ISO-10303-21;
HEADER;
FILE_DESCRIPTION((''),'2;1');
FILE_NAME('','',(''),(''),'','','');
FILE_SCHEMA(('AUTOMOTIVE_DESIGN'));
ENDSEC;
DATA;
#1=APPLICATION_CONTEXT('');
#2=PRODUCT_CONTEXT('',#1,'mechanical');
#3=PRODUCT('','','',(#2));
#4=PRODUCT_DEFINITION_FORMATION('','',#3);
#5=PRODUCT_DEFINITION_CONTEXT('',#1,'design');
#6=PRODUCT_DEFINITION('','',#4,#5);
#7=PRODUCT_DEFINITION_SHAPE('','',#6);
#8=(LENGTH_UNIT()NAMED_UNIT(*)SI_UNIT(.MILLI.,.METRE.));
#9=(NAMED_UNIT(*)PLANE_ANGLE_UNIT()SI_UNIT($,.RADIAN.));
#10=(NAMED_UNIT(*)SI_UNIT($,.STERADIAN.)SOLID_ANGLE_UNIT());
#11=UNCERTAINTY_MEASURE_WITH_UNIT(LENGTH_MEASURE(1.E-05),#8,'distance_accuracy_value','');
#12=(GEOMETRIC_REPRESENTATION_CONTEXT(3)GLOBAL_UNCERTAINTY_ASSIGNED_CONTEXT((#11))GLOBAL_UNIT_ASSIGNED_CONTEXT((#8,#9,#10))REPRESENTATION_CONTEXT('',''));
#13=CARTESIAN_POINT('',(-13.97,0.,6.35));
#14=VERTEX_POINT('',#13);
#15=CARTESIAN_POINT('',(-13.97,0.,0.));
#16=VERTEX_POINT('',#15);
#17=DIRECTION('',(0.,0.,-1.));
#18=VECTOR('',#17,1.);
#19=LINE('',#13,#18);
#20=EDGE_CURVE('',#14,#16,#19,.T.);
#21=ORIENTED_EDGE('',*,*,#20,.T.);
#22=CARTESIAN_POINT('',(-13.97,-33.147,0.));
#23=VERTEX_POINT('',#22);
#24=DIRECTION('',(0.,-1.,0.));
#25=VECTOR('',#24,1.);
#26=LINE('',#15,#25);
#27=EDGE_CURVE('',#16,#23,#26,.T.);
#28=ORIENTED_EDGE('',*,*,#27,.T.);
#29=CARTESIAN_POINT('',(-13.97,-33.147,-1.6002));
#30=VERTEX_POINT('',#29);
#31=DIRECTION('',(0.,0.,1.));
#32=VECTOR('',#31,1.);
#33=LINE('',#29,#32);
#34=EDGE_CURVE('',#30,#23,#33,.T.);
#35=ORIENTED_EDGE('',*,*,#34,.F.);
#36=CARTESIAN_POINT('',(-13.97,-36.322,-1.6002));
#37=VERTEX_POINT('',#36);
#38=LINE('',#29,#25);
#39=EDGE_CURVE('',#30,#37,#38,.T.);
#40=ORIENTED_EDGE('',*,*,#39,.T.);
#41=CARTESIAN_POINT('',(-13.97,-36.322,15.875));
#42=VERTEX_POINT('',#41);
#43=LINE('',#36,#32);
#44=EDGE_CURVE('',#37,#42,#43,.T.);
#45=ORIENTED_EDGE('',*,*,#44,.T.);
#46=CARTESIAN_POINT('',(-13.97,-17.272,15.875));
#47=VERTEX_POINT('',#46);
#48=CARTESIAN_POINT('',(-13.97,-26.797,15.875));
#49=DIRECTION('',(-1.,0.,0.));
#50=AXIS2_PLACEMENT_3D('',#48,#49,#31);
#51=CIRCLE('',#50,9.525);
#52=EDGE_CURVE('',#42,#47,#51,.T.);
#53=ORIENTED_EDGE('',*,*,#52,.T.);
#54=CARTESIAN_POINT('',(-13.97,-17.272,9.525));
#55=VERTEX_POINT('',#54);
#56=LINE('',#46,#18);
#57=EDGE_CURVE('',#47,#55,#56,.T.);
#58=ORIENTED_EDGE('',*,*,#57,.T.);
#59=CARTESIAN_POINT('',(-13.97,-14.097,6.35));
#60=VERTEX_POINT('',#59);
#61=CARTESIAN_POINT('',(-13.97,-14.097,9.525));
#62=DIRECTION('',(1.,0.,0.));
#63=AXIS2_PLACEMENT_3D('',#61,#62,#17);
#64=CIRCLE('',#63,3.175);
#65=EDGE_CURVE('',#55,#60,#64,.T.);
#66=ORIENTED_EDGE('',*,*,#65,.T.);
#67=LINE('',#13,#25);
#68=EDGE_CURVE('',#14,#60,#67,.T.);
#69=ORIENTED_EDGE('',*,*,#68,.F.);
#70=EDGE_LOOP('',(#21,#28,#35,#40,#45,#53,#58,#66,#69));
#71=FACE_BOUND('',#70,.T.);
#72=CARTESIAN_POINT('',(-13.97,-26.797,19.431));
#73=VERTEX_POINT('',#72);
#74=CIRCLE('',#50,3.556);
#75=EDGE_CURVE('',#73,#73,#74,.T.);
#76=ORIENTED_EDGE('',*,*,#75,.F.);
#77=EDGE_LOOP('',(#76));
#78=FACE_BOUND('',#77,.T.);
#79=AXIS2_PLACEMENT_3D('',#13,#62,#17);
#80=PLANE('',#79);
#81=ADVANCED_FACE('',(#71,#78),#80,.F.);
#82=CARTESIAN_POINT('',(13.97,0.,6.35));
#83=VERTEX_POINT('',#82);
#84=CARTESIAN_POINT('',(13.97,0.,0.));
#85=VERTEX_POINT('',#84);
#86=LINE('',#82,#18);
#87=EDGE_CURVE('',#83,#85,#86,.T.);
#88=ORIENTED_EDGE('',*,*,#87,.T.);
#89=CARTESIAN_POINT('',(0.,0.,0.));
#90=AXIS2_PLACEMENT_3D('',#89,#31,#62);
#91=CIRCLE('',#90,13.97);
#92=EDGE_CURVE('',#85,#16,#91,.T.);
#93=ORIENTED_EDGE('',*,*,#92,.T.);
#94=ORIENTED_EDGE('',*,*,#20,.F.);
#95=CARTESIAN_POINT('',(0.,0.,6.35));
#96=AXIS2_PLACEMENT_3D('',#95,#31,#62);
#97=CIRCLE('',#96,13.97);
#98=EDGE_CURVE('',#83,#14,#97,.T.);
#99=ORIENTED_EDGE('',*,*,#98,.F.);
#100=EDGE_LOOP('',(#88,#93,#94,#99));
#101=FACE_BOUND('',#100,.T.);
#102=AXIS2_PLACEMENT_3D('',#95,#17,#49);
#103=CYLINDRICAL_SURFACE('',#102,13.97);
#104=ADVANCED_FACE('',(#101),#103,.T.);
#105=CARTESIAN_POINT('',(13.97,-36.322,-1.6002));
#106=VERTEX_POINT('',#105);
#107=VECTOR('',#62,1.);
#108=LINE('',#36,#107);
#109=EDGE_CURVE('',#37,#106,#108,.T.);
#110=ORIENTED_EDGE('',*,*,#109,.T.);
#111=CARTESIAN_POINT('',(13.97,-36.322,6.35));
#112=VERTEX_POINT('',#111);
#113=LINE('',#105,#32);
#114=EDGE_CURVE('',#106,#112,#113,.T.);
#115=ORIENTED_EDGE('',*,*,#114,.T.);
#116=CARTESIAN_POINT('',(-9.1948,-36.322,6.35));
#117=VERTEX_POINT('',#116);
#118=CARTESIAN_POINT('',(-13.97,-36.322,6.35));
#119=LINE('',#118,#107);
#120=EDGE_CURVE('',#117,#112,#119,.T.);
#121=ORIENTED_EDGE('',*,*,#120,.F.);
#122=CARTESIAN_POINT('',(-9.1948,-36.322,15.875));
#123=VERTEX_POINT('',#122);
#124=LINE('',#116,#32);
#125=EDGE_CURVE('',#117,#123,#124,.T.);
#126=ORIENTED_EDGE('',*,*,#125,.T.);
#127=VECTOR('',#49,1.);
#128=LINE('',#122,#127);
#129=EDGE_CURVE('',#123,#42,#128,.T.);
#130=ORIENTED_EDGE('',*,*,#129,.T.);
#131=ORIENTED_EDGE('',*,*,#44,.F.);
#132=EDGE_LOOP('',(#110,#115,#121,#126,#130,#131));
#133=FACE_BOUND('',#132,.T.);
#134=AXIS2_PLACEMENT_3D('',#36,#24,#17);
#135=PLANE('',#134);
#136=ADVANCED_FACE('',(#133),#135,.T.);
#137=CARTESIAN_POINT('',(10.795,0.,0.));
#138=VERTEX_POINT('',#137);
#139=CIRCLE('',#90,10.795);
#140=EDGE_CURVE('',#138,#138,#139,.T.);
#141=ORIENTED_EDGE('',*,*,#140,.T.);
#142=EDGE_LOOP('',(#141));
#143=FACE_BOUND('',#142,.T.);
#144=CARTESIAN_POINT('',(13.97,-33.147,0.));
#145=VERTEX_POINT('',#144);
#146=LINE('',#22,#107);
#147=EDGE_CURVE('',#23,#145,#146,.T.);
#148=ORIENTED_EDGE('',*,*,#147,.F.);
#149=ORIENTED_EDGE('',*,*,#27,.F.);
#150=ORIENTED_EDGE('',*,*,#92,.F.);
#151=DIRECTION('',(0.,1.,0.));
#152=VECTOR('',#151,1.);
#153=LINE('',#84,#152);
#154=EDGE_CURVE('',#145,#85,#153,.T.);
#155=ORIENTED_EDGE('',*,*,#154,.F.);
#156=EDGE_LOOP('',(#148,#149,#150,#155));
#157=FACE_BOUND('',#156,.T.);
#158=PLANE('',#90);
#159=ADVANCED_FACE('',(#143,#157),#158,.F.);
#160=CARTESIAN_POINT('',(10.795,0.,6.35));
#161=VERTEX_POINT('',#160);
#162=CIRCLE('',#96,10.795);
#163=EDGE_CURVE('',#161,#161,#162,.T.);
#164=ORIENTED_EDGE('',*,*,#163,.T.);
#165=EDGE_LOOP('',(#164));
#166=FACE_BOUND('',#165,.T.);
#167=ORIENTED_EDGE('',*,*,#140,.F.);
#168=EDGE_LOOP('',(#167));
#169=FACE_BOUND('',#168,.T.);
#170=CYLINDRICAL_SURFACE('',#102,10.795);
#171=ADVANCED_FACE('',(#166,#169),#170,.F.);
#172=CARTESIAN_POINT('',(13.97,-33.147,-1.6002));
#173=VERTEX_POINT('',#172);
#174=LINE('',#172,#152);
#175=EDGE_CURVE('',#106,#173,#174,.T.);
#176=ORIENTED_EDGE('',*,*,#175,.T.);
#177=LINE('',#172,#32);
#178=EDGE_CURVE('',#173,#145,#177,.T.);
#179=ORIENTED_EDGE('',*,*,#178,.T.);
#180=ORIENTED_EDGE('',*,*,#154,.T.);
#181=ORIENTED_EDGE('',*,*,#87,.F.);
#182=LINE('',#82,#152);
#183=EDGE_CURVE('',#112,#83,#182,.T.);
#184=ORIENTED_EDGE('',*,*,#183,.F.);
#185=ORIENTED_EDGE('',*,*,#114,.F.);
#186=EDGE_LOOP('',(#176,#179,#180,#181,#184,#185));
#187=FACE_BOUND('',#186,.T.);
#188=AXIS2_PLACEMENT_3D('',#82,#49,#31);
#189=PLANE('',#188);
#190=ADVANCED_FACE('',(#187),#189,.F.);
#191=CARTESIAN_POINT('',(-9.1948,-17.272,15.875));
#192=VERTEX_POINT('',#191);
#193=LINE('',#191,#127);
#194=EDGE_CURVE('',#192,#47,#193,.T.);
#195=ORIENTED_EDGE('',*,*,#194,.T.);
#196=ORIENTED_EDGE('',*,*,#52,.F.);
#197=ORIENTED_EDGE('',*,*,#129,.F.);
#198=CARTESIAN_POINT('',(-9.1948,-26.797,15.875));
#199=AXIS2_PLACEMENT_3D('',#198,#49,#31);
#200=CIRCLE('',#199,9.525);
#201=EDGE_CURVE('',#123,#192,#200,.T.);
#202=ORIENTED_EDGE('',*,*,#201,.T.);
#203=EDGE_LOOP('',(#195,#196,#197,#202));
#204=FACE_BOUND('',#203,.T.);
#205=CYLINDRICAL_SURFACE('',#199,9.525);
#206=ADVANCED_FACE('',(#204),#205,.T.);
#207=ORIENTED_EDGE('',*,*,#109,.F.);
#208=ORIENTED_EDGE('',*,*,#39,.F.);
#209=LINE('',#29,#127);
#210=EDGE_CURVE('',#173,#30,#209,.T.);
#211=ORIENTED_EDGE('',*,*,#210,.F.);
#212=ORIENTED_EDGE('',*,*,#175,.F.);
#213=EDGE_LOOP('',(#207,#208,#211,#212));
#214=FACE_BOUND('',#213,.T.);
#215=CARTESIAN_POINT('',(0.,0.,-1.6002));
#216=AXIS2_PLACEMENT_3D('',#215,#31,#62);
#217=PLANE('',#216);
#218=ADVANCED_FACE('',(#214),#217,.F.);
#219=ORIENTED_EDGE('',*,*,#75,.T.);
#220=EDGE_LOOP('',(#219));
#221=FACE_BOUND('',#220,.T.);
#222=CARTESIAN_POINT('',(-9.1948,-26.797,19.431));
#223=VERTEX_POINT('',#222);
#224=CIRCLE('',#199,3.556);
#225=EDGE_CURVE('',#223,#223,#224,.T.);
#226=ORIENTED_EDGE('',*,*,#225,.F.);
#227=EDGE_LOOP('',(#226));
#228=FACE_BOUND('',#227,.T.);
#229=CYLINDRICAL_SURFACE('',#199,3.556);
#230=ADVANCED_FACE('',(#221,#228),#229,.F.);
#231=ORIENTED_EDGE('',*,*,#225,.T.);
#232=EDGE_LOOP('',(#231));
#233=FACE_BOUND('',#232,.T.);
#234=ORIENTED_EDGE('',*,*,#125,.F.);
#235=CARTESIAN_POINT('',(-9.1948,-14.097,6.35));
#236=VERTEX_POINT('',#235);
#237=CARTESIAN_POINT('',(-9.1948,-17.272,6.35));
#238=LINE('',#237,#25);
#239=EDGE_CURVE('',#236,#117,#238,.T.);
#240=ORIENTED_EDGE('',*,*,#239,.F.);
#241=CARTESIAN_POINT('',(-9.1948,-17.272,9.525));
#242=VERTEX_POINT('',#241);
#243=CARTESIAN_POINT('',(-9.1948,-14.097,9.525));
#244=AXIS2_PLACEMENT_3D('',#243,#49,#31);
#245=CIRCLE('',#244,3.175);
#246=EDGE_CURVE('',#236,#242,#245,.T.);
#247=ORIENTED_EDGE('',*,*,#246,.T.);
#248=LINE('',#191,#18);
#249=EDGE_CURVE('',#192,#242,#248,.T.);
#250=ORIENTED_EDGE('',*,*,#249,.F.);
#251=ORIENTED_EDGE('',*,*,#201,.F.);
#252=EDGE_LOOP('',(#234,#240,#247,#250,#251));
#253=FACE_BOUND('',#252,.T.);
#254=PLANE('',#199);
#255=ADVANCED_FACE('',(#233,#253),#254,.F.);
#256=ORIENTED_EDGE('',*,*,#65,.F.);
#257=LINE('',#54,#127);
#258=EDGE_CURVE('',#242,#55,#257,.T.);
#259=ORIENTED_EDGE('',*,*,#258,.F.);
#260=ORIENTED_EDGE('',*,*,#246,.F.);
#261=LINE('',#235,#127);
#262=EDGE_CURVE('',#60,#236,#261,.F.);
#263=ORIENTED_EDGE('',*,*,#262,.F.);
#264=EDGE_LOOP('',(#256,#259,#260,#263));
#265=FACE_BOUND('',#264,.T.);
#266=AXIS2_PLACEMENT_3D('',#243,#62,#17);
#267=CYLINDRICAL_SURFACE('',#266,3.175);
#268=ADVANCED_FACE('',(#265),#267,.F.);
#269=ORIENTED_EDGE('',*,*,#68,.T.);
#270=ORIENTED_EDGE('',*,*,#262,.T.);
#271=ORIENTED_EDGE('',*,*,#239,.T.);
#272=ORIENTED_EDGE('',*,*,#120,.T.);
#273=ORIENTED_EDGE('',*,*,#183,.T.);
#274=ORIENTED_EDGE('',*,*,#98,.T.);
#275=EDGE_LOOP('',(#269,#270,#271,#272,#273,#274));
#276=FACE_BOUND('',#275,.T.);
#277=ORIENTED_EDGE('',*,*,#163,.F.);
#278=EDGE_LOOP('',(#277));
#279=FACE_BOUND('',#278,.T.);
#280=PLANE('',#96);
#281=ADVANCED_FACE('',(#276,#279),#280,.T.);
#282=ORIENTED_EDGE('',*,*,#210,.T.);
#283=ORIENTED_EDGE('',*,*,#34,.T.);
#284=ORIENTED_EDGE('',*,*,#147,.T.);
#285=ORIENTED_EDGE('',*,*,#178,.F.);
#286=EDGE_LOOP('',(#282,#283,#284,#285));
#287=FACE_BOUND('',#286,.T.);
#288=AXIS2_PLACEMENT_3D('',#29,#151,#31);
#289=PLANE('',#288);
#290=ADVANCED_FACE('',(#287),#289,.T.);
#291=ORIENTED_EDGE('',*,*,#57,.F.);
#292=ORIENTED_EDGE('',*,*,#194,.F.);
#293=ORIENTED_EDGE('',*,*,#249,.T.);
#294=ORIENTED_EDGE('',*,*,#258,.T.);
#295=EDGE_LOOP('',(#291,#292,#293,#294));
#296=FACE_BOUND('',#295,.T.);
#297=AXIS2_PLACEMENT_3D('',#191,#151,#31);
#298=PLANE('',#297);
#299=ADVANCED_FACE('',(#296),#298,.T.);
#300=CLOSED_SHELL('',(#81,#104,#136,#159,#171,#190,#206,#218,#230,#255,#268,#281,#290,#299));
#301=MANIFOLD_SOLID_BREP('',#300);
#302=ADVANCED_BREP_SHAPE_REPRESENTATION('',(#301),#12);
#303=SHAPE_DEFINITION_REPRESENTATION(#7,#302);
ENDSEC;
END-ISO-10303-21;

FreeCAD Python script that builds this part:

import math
import FreeCAD as App
import Part
import Sketcher
from FreeCAD import Vector
Q = App.Units.Quantity


def edges_at(feature, points):
    """Names of the edges that pass closest to the given points."""
    edges = feature.Shape.Edges
    near = lambda p: min(range(len(edges)), key=lambda i: edges[i].distToShape(Part.Vertex(*p))[0])
    return sorted({f"Edge{near(p) + 1}" for p in points})

doc = App.newDocument("Part")
body = doc.addObject("PartDesign::Body", "Body")

sketch1 = doc.addObject("Sketcher::SketchObject", "Sketch")
body.addObject(sketch1)
sketch1.AttachmentSupport = (doc.XY_Plane, [""])
sketch1.MapMode = "FlatFace"
sketch1.addGeometry([
    Part.LineSegment(Vector(-13.97, 0, 0), Vector(-13.97, -33.147, 0)),
    Part.LineSegment(Vector(-13.97, -33.147, 0), Vector(13.97, -33.147, 0)),
    Part.LineSegment(Vector(13.97, -33.147, 0), Vector(13.97, 0, 0)),
    Part.ArcOfCircle(Part.Circle(Vector(0, 0, 0), Vector(0, 0, 1), 13.97), math.radians(0), math.radians(180)),
    Part.Circle(Vector(0, 0, 0), Vector(0, 0, 1), 10.795),
], False)
sketch1.addConstraint([
    Sketcher.Constraint("Coincident", 0, 2, 1, 1),
    Sketcher.Constraint("Coincident", 1, 2, 2, 1),
    Sketcher.Constraint("Tangent", 2, 2, 3, 1),
    Sketcher.Constraint("Tangent", 3, 2, 0, 1),
    Sketcher.Constraint("Vertical", 0),
    Sketcher.Constraint("Horizontal", 1),
    Sketcher.Constraint("Vertical", 2),
    Sketcher.Constraint("Coincident", 3, 3, -1, 1),
    Sketcher.Constraint("Coincident", 4, 3, -1, 1),
    Sketcher.Constraint("Diameter", 4, Q("0.85 in")),
    Sketcher.Constraint("Radius", 3, Q("0.55 in")),
    Sketcher.Constraint("DistanceY", 0, 2, 0, 1, Q("1.305 in")),
])
pad1 = doc.addObject("PartDesign::Pad", "Pad")
body.addObject(pad1)
pad1.Profile = sketch1
pad1.Length = Q("0.25 in")

sketch2 = doc.addObject("Sketcher::SketchObject", "Sketch001")
body.addObject(sketch2)
sketch2.AttachmentSupport = (doc.XY_Plane, [""])
sketch2.MapMode = "FlatFace"
sketch2.AttachmentOffset = App.Placement(Vector(0, 0, 0.25 * 25.4), App.Rotation())
sketch2.addGeometry([
    Part.LineSegment(Vector(-13.97, -33.147, 0), Vector(-13.97, -36.322, 0)),
    Part.LineSegment(Vector(-13.97, -36.322, 0), Vector(13.97, -36.322, 0)),
    Part.LineSegment(Vector(13.97, -36.322, 0), Vector(13.97, -33.147, 0)),
    Part.LineSegment(Vector(13.97, -33.147, 0), Vector(-13.97, -33.147, 0)),
], False)
sketch2.addConstraint([
    Sketcher.Constraint("Coincident", 0, 2, 1, 1),
    Sketcher.Constraint("Coincident", 1, 2, 2, 1),
    Sketcher.Constraint("Coincident", 2, 2, 3, 1),
    Sketcher.Constraint("Coincident", 3, 2, 0, 1),
    Sketcher.Constraint("Vertical", 0),
    Sketcher.Constraint("Horizontal", 1),
    Sketcher.Constraint("Vertical", 2),
    Sketcher.Constraint("Horizontal", 3),
    Sketcher.Constraint("DistanceX", 1, 1, 1, 2, Q("1.1 in")),
    Sketcher.Constraint("DistanceY", 0, 2, 0, 1, Q("0.125 in")),
    Sketcher.Constraint("DistanceX", 0, 2, -1, 1, Q("0.55 in")),
    Sketcher.Constraint("DistanceY", 0, 2, -1, 1, Q("1.43 in")),
])
pad2 = doc.addObject("PartDesign::Pad", "Pad001")
body.addObject(pad2)
pad2.Profile = sketch2
pad2.Length = Q("0.313 in")
pad2.Reversed = True

sketch3 = doc.addObject("Sketcher::SketchObject", "Sketch002")
body.addObject(sketch3)
sketch3.AttachmentSupport = (doc.YZ_Plane, [""])
sketch3.MapMode = "FlatFace"
sketch3.AttachmentOffset = App.Placement(Vector(0, 0, -0.55 * 25.4), App.Rotation())
sketch3.addGeometry([
    Part.LineSegment(Vector(-36.322, 6.35, 0), Vector(-36.322, 15.875, 0)),
    Part.ArcOfCircle(Part.Circle(Vector(-26.797, 15.875, 0), Vector(0, 0, 1), 9.525), math.radians(0), math.radians(180)),
    Part.LineSegment(Vector(-17.272, 15.875, 0), Vector(-17.272, 6.35, 0)),
    Part.LineSegment(Vector(-17.272, 6.35, 0), Vector(-36.322, 6.35, 0)),
    Part.Circle(Vector(-26.797, 15.875, 0), Vector(0, 0, 1), 3.556),
], False)
sketch3.addConstraint([
    Sketcher.Constraint("Tangent", 0, 2, 1, 2),
    Sketcher.Constraint("Tangent", 1, 1, 2, 1),
    Sketcher.Constraint("Coincident", 2, 2, 3, 1),
    Sketcher.Constraint("Coincident", 3, 2, 0, 1),
    Sketcher.Constraint("Vertical", 0),
    Sketcher.Constraint("Vertical", 2),
    Sketcher.Constraint("Horizontal", 3),
    Sketcher.Constraint("Coincident", 4, 3, 1, 3),
    Sketcher.Constraint("Diameter", 4, Q("0.28 in")),
    Sketcher.Constraint("Radius", 1, Q("0.375 in")),
    Sketcher.Constraint("DistanceY", 0, 1, 0, 2, Q("0.375 in")),
    Sketcher.Constraint("DistanceX", 0, 2, -1, 1, Q("1.43 in")),
    Sketcher.Constraint("DistanceY", -1, 1, 2, 2, Q("0.25 in")),
])
pad3 = doc.addObject("PartDesign::Pad", "Pad002")
body.addObject(pad3)
pad3.Profile = sketch3
pad3.Length = Q("0.188 in")
doc.recompute()

fillet = doc.addObject("PartDesign::Fillet", "Fillet")
body.addObject(fillet)
fillet.Base = (pad3, edges_at(pad3, [(-11.582, -17.272, 6.35)]))
fillet.Radius = Q("0.125 in")

doc.recompute()
